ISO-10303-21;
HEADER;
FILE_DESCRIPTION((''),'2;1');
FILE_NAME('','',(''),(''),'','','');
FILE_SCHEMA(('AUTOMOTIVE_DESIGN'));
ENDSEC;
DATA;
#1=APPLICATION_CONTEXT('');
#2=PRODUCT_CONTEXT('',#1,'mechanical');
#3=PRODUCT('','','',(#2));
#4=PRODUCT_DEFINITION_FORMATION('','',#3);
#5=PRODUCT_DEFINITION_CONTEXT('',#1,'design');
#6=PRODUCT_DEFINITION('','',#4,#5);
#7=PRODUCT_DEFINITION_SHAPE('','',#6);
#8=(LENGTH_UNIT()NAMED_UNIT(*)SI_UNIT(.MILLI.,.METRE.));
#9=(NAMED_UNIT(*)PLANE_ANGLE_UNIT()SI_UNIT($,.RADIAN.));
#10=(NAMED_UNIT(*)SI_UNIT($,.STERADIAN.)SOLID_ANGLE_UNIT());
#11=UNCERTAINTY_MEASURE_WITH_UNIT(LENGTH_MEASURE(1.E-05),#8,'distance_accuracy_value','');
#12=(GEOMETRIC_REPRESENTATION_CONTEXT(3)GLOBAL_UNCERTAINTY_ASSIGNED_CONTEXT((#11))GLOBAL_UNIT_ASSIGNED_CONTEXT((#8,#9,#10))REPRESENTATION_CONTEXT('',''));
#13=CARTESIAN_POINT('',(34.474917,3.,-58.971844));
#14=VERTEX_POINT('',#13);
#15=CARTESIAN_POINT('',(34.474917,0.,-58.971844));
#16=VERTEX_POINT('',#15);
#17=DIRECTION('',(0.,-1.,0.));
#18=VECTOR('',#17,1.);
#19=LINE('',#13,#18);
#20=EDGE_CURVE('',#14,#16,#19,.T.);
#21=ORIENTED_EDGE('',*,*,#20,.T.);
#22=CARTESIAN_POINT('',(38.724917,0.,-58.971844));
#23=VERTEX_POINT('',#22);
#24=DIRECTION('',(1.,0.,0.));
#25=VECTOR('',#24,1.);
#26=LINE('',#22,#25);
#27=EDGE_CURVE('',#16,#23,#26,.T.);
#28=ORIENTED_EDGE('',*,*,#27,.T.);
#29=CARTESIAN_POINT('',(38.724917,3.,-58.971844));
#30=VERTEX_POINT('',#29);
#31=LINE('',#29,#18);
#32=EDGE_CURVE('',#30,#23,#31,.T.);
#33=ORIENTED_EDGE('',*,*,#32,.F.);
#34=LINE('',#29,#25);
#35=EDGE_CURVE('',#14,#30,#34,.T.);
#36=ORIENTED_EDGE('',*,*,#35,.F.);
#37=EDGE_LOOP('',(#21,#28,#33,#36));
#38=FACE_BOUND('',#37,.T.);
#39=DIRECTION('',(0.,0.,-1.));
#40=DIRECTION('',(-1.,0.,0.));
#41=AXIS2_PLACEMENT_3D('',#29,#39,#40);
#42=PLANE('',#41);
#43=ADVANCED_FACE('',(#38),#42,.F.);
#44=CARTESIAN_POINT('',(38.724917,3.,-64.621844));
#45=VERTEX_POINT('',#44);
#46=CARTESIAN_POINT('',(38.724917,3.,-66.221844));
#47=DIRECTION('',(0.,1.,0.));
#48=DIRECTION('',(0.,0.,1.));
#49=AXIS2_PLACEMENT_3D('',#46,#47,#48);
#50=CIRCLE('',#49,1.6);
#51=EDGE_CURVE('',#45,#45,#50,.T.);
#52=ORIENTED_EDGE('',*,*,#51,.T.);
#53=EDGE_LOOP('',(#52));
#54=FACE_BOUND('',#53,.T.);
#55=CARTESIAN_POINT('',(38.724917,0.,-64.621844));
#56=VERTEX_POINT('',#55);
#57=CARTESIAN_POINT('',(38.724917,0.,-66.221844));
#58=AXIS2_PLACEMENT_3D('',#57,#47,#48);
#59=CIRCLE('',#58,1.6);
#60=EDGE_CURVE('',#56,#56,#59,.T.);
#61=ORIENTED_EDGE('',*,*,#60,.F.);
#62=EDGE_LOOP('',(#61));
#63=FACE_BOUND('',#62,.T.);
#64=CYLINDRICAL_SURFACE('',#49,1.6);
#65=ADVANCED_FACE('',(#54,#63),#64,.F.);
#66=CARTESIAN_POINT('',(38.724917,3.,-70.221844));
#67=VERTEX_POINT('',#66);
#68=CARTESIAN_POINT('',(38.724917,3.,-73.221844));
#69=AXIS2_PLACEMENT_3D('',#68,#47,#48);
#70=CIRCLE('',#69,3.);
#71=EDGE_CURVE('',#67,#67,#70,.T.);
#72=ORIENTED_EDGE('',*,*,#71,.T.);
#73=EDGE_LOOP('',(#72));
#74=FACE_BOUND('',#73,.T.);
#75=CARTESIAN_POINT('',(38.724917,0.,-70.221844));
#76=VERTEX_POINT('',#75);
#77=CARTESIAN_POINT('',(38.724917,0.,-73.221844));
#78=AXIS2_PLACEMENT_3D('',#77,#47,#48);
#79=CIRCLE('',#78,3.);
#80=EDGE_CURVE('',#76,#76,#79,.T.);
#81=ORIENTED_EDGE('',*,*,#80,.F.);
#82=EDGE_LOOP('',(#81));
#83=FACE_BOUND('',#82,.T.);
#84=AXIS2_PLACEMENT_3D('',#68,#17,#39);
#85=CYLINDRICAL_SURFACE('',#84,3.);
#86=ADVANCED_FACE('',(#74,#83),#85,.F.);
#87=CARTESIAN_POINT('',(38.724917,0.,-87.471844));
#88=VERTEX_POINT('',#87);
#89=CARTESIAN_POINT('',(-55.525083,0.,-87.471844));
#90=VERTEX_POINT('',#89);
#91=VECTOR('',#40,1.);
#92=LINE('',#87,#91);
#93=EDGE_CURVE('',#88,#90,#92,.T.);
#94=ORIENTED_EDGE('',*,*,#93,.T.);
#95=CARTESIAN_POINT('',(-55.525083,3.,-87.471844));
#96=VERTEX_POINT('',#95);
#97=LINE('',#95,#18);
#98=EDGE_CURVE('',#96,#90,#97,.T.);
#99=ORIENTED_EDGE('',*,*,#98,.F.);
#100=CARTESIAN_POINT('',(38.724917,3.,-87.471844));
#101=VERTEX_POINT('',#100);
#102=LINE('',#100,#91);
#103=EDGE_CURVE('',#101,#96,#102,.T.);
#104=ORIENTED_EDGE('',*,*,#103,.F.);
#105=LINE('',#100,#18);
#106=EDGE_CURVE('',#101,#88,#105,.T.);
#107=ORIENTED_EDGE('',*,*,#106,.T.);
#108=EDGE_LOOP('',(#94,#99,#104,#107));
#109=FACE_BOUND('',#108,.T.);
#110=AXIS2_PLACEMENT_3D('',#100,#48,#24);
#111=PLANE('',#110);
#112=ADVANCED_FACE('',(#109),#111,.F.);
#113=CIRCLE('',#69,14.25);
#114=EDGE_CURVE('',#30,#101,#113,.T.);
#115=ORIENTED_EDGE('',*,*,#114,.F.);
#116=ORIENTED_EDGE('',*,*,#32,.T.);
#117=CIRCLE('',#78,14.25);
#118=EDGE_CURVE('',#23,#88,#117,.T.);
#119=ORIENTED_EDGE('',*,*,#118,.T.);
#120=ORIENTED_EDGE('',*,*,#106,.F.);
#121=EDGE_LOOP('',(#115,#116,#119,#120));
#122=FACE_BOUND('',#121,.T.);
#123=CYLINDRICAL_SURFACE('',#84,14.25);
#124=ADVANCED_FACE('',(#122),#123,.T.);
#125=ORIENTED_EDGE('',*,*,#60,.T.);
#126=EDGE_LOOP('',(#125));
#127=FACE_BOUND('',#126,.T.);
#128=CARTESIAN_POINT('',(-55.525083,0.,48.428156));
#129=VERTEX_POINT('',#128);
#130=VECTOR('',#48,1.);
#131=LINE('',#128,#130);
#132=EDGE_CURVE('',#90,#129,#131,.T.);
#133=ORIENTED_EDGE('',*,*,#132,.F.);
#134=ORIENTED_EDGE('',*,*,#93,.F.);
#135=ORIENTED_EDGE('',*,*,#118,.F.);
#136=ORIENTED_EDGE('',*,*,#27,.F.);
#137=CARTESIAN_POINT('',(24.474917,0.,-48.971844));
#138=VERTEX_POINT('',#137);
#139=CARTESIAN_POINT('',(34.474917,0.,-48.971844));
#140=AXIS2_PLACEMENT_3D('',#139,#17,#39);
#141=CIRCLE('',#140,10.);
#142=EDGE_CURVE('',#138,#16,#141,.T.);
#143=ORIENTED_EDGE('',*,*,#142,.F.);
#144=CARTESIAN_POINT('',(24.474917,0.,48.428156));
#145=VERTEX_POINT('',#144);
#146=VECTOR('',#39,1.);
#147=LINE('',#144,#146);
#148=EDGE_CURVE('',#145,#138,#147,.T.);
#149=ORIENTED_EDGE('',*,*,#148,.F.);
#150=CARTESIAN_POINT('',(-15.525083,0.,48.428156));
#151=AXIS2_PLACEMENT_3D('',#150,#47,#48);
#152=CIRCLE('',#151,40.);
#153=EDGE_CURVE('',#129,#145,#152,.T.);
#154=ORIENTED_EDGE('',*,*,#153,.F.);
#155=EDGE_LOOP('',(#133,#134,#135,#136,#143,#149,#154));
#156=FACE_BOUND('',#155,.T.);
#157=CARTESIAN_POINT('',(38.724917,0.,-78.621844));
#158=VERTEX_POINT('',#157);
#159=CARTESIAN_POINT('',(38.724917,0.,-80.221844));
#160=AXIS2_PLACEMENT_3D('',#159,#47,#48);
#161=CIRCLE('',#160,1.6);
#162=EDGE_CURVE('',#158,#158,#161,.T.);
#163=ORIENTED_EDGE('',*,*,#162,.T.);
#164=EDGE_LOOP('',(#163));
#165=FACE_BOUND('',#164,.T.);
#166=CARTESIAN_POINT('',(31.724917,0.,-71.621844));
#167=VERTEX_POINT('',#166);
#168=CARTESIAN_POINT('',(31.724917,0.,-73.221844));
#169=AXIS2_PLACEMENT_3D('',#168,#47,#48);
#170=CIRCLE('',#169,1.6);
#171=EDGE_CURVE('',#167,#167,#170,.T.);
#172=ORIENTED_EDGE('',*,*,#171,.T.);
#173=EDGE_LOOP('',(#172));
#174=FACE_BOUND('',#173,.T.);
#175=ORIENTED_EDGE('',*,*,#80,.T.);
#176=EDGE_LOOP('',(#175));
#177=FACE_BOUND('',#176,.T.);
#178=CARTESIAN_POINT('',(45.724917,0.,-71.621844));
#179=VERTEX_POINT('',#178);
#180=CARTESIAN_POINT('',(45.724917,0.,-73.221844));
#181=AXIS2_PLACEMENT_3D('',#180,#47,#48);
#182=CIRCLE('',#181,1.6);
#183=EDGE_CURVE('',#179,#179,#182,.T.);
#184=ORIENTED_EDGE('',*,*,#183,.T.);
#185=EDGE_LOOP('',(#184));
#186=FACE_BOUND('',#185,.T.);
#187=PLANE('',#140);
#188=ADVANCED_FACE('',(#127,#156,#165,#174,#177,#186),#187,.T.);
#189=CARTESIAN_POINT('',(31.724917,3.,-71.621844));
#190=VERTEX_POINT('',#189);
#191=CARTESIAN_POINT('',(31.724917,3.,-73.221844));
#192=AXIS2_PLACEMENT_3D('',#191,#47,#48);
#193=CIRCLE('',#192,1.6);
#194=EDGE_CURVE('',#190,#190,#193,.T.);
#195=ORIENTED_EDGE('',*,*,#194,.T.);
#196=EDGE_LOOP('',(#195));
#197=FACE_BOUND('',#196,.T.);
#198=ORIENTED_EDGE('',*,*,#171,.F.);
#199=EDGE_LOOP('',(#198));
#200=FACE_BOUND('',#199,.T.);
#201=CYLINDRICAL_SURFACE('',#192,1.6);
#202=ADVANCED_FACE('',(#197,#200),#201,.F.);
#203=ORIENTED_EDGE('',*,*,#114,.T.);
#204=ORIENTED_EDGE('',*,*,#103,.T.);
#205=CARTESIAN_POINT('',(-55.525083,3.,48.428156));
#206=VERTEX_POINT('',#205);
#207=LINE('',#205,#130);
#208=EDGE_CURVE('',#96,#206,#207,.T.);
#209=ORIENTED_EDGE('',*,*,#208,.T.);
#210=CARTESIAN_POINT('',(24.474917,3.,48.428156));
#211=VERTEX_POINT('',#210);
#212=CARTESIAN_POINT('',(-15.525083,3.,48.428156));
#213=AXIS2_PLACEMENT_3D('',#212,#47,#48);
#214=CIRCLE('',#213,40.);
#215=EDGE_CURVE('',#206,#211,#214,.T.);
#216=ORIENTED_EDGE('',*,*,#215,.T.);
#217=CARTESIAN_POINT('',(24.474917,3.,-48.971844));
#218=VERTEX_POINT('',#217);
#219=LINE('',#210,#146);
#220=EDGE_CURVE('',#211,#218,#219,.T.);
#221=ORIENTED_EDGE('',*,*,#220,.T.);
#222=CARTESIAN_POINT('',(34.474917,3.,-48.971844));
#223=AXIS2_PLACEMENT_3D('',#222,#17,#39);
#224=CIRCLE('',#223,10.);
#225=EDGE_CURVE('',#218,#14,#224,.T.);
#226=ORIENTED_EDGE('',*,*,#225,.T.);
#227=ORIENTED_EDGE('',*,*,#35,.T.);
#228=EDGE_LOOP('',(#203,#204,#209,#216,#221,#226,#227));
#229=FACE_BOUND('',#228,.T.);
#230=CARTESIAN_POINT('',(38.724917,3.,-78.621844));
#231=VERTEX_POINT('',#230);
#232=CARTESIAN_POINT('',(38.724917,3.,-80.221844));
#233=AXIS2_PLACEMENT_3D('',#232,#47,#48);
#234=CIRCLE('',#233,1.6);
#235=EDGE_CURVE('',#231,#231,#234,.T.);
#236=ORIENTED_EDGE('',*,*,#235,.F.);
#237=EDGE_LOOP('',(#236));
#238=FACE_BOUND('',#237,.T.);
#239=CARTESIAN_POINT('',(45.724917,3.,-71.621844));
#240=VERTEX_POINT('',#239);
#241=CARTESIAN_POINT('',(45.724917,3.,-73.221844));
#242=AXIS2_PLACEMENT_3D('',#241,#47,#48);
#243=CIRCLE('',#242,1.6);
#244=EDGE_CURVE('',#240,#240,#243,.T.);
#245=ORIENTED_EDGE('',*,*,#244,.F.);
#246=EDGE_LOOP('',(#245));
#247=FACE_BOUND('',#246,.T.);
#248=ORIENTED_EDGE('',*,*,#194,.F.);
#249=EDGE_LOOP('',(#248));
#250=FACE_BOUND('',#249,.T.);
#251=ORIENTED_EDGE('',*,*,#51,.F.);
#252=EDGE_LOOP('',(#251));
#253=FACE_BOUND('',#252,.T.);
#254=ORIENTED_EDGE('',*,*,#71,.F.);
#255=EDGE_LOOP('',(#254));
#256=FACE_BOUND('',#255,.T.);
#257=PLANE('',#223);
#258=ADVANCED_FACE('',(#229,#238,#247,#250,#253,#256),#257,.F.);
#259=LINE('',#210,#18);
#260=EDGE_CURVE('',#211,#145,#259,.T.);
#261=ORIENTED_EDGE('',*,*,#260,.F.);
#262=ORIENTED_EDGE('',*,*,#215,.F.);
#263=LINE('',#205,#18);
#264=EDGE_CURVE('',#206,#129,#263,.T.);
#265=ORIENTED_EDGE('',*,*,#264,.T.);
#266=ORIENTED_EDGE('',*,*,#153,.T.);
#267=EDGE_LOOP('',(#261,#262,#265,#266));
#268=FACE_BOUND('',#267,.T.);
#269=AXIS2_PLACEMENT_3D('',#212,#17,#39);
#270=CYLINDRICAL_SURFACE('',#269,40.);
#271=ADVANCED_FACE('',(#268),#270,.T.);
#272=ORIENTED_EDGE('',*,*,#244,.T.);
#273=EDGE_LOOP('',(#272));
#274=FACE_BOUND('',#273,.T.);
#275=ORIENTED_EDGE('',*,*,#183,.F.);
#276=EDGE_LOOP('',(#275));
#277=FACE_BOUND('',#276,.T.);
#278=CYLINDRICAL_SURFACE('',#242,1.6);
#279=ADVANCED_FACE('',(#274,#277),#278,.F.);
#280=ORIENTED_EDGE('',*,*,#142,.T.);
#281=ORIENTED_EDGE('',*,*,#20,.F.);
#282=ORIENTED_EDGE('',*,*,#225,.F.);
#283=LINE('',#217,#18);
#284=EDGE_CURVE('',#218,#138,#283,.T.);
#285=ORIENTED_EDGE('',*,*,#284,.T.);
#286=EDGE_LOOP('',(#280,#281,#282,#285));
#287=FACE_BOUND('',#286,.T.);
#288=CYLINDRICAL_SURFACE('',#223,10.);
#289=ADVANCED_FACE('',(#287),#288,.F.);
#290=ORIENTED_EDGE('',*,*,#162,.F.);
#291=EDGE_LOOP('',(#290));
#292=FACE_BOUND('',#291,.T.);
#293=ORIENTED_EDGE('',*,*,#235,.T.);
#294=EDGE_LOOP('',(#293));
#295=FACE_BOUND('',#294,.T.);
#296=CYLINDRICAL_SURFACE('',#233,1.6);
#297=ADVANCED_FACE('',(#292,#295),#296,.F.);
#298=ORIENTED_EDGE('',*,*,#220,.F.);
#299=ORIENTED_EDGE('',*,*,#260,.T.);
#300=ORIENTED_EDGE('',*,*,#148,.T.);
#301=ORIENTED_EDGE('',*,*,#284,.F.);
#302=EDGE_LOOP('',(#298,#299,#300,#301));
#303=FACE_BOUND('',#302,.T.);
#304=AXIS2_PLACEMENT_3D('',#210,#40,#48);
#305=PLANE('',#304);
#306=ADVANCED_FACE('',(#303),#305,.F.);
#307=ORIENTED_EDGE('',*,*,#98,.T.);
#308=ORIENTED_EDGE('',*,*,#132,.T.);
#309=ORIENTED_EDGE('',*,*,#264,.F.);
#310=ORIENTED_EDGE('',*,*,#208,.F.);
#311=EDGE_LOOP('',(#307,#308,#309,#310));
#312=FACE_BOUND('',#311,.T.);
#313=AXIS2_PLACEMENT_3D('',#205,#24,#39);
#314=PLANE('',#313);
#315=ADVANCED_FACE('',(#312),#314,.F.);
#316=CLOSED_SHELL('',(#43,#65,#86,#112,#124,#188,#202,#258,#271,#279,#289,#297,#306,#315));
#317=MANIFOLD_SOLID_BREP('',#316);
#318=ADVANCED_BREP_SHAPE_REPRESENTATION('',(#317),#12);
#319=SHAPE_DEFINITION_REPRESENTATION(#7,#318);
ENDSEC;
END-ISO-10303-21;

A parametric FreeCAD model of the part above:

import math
import FreeCAD as App
import Part
import Sketcher
Q = App.Units.Quantity

doc = App.newDocument("Part")
params = doc.addObject("Spreadsheet::Sheet", "Params")
for row, (alias, value) in enumerate([
    ("sketch1_diameter", "6 mm"),
    ("sketch1_radius", "40 mm"),
    ("sketch1_radius2", "10 mm"),
    ("sketch1_radius3", "14.25 mm"),
    ("sketch1_height", "135.9 mm"),
    ("pad1_length", "3 mm"),
    ("sketch2_diameter", "3.2 mm"),
    ("hole_diameter", "3.2 mm"),
], start=1):
    params.set(f"A{row}", alias)
    params.set(f"B{row}", "=" + value)
    params.setAlias(f"B{row}", alias)

body = doc.addObject("PartDesign::Body", "Body")

# Sketch on XZ plane
sketch1 = doc.addObject("Sketcher::SketchObject", "Sketch")
body.addObject(sketch1)
sketch1.AttachmentSupport = (doc.XZ_Plane, [""])
sketch1.MapMode = "FlatFace"
sketch1.addGeometry([
    Part.LineSegment(App.Vector(-55.5, -87.5, 0), App.Vector(-55.5, 48.4, 0)),  # 0
    Part.ArcOfCircle(Part.Circle(App.Vector(-15.5, 48.4, 0), App.Vector(0, 0, 1), 40), math.radians(0), math.radians(180)),  # 1
    Part.LineSegment(App.Vector(24.5, 48.4, 0), App.Vector(24.5, -49, 0)),  # 2
    Part.ArcOfCircle(Part.Circle(App.Vector(34.5, -49, 0), App.Vector(0, 0, 1), 10), math.radians(180), math.radians(270)),  # 3
    Part.LineSegment(App.Vector(34.5, -59, 0), App.Vector(38.7, -59, 0)),  # 4
    Part.ArcOfCircle(Part.Circle(App.Vector(38.7, -73.2, 0), App.Vector(0, 0, 1), 14.2), math.radians(-90), math.radians(90)),  # 5
    Part.LineSegment(App.Vector(38.7, -87.5, 0), App.Vector(-55.5, -87.5, 0)),  # 6
    Part.Circle(App.Vector(38.7, -73.2, 0), App.Vector(0, 0, 1), 3),  # 7
], False)
sketch1.addConstraint([
    Sketcher.Constraint("Tangent", 0, 2, 1, 2),
    Sketcher.Constraint("Tangent", 1, 1, 2, 1),
    Sketcher.Constraint("Tangent", 2, 2, 3, 1),
    Sketcher.Constraint("Tangent", 3, 2, 4, 1),
    Sketcher.Constraint("Tangent", 4, 2, 5, 2),
    Sketcher.Constraint("Tangent", 5, 1, 6, 1),
    Sketcher.Constraint("Coincident", 6, 2, 0, 1),
    Sketcher.Constraint("Vertical", 0),
    Sketcher.Constraint("Vertical", 2),
    Sketcher.Constraint("Horizontal", 4),
    Sketcher.Constraint("Horizontal", 6),
    Sketcher.Constraint("Coincident", 7, 3, 5, 3),
    Sketcher.Constraint("Diameter", 7, Q("6 mm")),
    Sketcher.Constraint("Radius", 1, Q("40 mm")),
    Sketcher.Constraint("Radius", 3, Q("10 mm")),
    Sketcher.Constraint("Radius", 5, Q("14.25 mm")),
    Sketcher.Constraint("DistanceY", 0, 1, 0, 2, Q("135.9 mm")),
    Sketcher.Constraint("DistanceX", 4, 1, 4, 2, Q("4.25 mm")),
    Sketcher.Constraint("DistanceX", 1, 3, -1, 1, Q("15.525083 mm")),
    Sketcher.Constraint("DistanceY", -1, 1, 1, 3, Q("48.428156 mm")),
])
sketch1.setExpression("Constraints[12]", "Params.sketch1_diameter")
sketch1.setExpression("Constraints[13]", "Params.sketch1_radius")
sketch1.setExpression("Constraints[14]", "Params.sketch1_radius2")
sketch1.setExpression("Constraints[15]", "Params.sketch1_radius3")
sketch1.setExpression("Constraints[16]", "Params.sketch1_height")
pad1 = doc.addObject("PartDesign::Pad", "Pad")
body.addObject(pad1)
pad1.Profile = sketch1
pad1.setExpression("Length", "Params.pad1_length")
pad1.Reversed = True

# Sketch on XZ plane
sketch2 = doc.addObject("Sketcher::SketchObject", "Sketch001")
body.addObject(sketch2)
sketch2.AttachmentSupport = (doc.XZ_Plane, [""])
sketch2.MapMode = "FlatFace"
sketch2.AttachmentOffset = App.Placement(App.Vector(0, 0, -3), App.Rotation())
sketch2.addGeometry([
    Part.Circle(App.Vector(38.7, -80.2, 0), App.Vector(0, 0, 1), 1.6),
    Part.Circle(App.Vector(31.7, -73.2, 0), App.Vector(0, 0, 1), 1.6),
    Part.Circle(App.Vector(38.7, -66.2, 0), App.Vector(0, 0, 1), 1.6),
    Part.Circle(App.Vector(45.7, -73.2, 0), App.Vector(0, 0, 1), 1.6),
], False)
sketch2.addConstraint([
    Sketcher.Constraint("Equal", 0, 1),
    Sketcher.Constraint("Equal", 1, 2),
    Sketcher.Constraint("Equal", 2, 3),
    Sketcher.Constraint("Horizontal", 1, 3, 3, 3),
    Sketcher.Constraint("Vertical", 0, 3, 2, 3),
    Sketcher.Constraint("Diameter", 0, Q("3.2 mm")),
    Sketcher.Constraint("DistanceX", 1, 3, 0, 3, Q("7 mm")),
    Sketcher.Constraint("DistanceY", 0, 3, 1, 3, Q("7 mm")),
    Sketcher.Constraint("DistanceY", 1, 3, 2, 3, Q("7 mm")),
    Sketcher.Constraint("DistanceX", 0, 3, 3, 3, Q("7 mm")),
    Sketcher.Constraint("DistanceX", -1, 1, 0, 3, Q("38.724917 mm")),
    Sketcher.Constraint("DistanceY", 0, 3, -1, 1, Q("80.221844 mm")),
])
sketch2.setExpression("Constraints[5]", "Params.sketch2_diameter")
doc.recompute()
hole = doc.addObject("PartDesign::Hole", "Hole")
body.addObject(hole)
hole.Profile = sketch2
hole.ThreadType = "None"
hole.setExpression("Diameter", "Params.hole_diameter")
hole.DepthType = "ThroughAll"
hole.Reversed = True

doc.recompute()
